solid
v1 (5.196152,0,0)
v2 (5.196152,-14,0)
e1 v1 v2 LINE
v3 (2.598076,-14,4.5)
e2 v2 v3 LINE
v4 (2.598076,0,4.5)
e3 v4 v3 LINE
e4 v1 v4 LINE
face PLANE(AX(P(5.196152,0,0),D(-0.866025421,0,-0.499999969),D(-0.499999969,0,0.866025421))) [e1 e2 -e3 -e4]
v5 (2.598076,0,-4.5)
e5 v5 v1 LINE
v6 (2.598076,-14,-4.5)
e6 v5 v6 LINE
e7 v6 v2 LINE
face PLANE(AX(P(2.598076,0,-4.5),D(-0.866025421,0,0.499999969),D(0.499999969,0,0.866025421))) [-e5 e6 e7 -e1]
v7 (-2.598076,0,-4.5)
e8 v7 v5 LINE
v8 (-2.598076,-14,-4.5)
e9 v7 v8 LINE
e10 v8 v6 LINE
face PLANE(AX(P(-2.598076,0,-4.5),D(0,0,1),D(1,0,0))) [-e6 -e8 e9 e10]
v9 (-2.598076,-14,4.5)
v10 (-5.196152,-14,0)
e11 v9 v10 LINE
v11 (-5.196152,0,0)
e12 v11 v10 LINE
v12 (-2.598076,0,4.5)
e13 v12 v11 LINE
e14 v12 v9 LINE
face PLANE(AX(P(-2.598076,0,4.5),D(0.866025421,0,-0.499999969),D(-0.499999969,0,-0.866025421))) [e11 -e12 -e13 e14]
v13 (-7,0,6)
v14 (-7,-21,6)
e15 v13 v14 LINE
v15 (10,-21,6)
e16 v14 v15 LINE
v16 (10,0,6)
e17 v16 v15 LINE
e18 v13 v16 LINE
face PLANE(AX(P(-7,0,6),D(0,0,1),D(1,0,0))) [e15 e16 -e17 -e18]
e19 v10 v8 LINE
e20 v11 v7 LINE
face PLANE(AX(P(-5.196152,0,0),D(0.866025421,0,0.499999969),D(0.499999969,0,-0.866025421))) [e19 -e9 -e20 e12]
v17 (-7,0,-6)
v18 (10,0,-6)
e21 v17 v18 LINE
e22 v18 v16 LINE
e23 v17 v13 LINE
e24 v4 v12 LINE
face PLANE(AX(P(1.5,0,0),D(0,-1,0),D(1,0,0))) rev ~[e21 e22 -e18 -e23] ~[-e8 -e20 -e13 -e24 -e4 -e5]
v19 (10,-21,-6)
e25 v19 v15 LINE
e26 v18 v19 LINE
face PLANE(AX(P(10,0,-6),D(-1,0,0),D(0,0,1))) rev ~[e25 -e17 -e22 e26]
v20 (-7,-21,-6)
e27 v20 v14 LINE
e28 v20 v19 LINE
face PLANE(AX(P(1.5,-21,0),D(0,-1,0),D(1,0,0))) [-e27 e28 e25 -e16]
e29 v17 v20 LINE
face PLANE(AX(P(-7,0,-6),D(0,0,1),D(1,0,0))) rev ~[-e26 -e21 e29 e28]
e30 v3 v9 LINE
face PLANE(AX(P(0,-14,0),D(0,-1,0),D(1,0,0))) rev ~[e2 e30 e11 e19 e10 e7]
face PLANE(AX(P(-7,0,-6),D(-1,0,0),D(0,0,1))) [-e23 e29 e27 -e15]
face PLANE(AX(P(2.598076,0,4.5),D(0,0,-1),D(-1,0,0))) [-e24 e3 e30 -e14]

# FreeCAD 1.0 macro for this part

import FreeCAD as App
import Part
import Sketcher
from FreeCAD import Vector
Q = App.Units.Quantity

doc = App.newDocument("Part")
body = doc.addObject("PartDesign::Body", "Body")

sketch1 = doc.addObject("Sketcher::SketchObject", "Sketch")
body.addObject(sketch1)
sketch1.AttachmentSupport = (doc.XZ_Plane, [""])
sketch1.MapMode = "FlatFace"
sketch1.addGeometry(Part.LineSegment(Vector(-7, 6, 0), Vector(-7, -6, 0)), False)
sketch1.addGeometry(Part.LineSegment(Vector(-7, -6, 0), Vector(10, -6, 0)), False)
sketch1.addGeometry(Part.LineSegment(Vector(10, -6, 0), Vector(10, 6, 0)), False)
sketch1.addGeometry(Part.LineSegment(Vector(10, 6, 0), Vector(-7, 6, 0)), False)
sketch1.addConstraint(Sketcher.Constraint("Coincident", 0, 2, 1, 1))
sketch1.addConstraint(Sketcher.Constraint("Coincident", 1, 2, 2, 1))
sketch1.addConstraint(Sketcher.Constraint("Coincident", 2, 2, 3, 1))
sketch1.addConstraint(Sketcher.Constraint("Coincident", 3, 2, 0, 1))
sketch1.addConstraint(Sketcher.Constraint("Vertical", 0))
sketch1.addConstraint(Sketcher.Constraint("Horizontal", 1))
sketch1.addConstraint(Sketcher.Constraint("Vertical", 2))
sketch1.addConstraint(Sketcher.Constraint("Horizontal", 3))
sketch1.addConstraint(Sketcher.Constraint("DistanceX", 1, 1, 1, 2, Q("17 mm")))
sketch1.addConstraint(Sketcher.Constraint("DistanceY", 0, 2, 0, 1, Q("12 mm")))
sketch1.addConstraint(Sketcher.Constraint("DistanceX", 0, 2, -1, 1, Q("7 mm")))
sketch1.addConstraint(Sketcher.Constraint("DistanceY", 0, 2, -1, 1, Q("6 mm")))
pad1 = doc.addObject("PartDesign::Pad", "Pad")
body.addObject(pad1)
pad1.Profile = sketch1
pad1.Length = 21

sketch2 = doc.addObject("Sketcher::SketchObject", "Sketch001")
body.addObject(sketch2)
sketch2.AttachmentSupport = (doc.XZ_Plane, [""])
sketch2.MapMode = "FlatFace"
sketch2.addGeometry(Part.LineSegment(Vector(3, 4, 0), Vector(-3, 4, 0)), False)
sketch2.addGeometry(Part.LineSegment(Vector(-3, 4, 0), Vector(-5, 0, 0)), False)
sketch2.addGeometry(Part.LineSegment(Vector(-5, 0, 0), Vector(-3, -4, 0)), False)
sketch2.addGeometry(Part.LineSegment(Vector(-3, -4, 0), Vector(3, -4, 0)), False)
sketch2.addGeometry(Part.LineSegment(Vector(3, -4, 0), Vector(5, 0, 0)), False)
sketch2.addGeometry(Part.LineSegment(Vector(5, 0, 0), Vector(3, 4, 0)), False)
sketch2.addConstraint(Sketcher.Constraint("Coincident", 0, 2, 1, 1))
sketch2.addConstraint(Sketcher.Constraint("Coincident", 1, 2, 2, 1))
sketch2.addConstraint(Sketcher.Constraint("Coincident", 2, 2, 3, 1))
sketch2.addConstraint(Sketcher.Constraint("Coincident", 3, 2, 4, 1))
sketch2.addConstraint(Sketcher.Constraint("Coincident", 4, 2, 5, 1))
sketch2.addConstraint(Sketcher.Constraint("Coincident", 5, 2, 0, 1))
sketch2.addConstraint(Sketcher.Constraint("Horizontal", 0))
sketch2.addConstraint(Sketcher.Constraint("Horizontal", 3))
sketch2.addConstraint(Sketcher.Constraint("Symmetric", 0, 2, 3, 2, -1, 1))
sketch2.addConstraint(Sketcher.Constraint("Symmetric", 1, 2, 4, 2, -1, 1))
sketch2.addConstraint(Sketcher.Constraint("PointOnObject", 1, 2, -1))
sketch2.addConstraint(Sketcher.Constraint("Parallel", 2, 5))
sketch2.addConstraint(Sketcher.Constraint("Vertical", 0, 2, 2, 2))
sketch2.addConstraint(Sketcher.Constraint("Angle", 1, Q("-119.999998 deg")))
sketch2.addConstraint(Sketcher.Constraint("DistanceY", 2, 2, 0, 2, Q("9 mm")))
sketch2.addConstraint(Sketcher.Constraint("DistanceX", 0, 2, 0, 1, Q("5.196152 mm")))
pocket1 = doc.addObject("PartDesign::Pocket", "Pocket")
body.addObject(pocket1)
pocket1.Profile = sketch2
pocket1.Length = 14
pocket1.Reversed = True

doc.recompute()
